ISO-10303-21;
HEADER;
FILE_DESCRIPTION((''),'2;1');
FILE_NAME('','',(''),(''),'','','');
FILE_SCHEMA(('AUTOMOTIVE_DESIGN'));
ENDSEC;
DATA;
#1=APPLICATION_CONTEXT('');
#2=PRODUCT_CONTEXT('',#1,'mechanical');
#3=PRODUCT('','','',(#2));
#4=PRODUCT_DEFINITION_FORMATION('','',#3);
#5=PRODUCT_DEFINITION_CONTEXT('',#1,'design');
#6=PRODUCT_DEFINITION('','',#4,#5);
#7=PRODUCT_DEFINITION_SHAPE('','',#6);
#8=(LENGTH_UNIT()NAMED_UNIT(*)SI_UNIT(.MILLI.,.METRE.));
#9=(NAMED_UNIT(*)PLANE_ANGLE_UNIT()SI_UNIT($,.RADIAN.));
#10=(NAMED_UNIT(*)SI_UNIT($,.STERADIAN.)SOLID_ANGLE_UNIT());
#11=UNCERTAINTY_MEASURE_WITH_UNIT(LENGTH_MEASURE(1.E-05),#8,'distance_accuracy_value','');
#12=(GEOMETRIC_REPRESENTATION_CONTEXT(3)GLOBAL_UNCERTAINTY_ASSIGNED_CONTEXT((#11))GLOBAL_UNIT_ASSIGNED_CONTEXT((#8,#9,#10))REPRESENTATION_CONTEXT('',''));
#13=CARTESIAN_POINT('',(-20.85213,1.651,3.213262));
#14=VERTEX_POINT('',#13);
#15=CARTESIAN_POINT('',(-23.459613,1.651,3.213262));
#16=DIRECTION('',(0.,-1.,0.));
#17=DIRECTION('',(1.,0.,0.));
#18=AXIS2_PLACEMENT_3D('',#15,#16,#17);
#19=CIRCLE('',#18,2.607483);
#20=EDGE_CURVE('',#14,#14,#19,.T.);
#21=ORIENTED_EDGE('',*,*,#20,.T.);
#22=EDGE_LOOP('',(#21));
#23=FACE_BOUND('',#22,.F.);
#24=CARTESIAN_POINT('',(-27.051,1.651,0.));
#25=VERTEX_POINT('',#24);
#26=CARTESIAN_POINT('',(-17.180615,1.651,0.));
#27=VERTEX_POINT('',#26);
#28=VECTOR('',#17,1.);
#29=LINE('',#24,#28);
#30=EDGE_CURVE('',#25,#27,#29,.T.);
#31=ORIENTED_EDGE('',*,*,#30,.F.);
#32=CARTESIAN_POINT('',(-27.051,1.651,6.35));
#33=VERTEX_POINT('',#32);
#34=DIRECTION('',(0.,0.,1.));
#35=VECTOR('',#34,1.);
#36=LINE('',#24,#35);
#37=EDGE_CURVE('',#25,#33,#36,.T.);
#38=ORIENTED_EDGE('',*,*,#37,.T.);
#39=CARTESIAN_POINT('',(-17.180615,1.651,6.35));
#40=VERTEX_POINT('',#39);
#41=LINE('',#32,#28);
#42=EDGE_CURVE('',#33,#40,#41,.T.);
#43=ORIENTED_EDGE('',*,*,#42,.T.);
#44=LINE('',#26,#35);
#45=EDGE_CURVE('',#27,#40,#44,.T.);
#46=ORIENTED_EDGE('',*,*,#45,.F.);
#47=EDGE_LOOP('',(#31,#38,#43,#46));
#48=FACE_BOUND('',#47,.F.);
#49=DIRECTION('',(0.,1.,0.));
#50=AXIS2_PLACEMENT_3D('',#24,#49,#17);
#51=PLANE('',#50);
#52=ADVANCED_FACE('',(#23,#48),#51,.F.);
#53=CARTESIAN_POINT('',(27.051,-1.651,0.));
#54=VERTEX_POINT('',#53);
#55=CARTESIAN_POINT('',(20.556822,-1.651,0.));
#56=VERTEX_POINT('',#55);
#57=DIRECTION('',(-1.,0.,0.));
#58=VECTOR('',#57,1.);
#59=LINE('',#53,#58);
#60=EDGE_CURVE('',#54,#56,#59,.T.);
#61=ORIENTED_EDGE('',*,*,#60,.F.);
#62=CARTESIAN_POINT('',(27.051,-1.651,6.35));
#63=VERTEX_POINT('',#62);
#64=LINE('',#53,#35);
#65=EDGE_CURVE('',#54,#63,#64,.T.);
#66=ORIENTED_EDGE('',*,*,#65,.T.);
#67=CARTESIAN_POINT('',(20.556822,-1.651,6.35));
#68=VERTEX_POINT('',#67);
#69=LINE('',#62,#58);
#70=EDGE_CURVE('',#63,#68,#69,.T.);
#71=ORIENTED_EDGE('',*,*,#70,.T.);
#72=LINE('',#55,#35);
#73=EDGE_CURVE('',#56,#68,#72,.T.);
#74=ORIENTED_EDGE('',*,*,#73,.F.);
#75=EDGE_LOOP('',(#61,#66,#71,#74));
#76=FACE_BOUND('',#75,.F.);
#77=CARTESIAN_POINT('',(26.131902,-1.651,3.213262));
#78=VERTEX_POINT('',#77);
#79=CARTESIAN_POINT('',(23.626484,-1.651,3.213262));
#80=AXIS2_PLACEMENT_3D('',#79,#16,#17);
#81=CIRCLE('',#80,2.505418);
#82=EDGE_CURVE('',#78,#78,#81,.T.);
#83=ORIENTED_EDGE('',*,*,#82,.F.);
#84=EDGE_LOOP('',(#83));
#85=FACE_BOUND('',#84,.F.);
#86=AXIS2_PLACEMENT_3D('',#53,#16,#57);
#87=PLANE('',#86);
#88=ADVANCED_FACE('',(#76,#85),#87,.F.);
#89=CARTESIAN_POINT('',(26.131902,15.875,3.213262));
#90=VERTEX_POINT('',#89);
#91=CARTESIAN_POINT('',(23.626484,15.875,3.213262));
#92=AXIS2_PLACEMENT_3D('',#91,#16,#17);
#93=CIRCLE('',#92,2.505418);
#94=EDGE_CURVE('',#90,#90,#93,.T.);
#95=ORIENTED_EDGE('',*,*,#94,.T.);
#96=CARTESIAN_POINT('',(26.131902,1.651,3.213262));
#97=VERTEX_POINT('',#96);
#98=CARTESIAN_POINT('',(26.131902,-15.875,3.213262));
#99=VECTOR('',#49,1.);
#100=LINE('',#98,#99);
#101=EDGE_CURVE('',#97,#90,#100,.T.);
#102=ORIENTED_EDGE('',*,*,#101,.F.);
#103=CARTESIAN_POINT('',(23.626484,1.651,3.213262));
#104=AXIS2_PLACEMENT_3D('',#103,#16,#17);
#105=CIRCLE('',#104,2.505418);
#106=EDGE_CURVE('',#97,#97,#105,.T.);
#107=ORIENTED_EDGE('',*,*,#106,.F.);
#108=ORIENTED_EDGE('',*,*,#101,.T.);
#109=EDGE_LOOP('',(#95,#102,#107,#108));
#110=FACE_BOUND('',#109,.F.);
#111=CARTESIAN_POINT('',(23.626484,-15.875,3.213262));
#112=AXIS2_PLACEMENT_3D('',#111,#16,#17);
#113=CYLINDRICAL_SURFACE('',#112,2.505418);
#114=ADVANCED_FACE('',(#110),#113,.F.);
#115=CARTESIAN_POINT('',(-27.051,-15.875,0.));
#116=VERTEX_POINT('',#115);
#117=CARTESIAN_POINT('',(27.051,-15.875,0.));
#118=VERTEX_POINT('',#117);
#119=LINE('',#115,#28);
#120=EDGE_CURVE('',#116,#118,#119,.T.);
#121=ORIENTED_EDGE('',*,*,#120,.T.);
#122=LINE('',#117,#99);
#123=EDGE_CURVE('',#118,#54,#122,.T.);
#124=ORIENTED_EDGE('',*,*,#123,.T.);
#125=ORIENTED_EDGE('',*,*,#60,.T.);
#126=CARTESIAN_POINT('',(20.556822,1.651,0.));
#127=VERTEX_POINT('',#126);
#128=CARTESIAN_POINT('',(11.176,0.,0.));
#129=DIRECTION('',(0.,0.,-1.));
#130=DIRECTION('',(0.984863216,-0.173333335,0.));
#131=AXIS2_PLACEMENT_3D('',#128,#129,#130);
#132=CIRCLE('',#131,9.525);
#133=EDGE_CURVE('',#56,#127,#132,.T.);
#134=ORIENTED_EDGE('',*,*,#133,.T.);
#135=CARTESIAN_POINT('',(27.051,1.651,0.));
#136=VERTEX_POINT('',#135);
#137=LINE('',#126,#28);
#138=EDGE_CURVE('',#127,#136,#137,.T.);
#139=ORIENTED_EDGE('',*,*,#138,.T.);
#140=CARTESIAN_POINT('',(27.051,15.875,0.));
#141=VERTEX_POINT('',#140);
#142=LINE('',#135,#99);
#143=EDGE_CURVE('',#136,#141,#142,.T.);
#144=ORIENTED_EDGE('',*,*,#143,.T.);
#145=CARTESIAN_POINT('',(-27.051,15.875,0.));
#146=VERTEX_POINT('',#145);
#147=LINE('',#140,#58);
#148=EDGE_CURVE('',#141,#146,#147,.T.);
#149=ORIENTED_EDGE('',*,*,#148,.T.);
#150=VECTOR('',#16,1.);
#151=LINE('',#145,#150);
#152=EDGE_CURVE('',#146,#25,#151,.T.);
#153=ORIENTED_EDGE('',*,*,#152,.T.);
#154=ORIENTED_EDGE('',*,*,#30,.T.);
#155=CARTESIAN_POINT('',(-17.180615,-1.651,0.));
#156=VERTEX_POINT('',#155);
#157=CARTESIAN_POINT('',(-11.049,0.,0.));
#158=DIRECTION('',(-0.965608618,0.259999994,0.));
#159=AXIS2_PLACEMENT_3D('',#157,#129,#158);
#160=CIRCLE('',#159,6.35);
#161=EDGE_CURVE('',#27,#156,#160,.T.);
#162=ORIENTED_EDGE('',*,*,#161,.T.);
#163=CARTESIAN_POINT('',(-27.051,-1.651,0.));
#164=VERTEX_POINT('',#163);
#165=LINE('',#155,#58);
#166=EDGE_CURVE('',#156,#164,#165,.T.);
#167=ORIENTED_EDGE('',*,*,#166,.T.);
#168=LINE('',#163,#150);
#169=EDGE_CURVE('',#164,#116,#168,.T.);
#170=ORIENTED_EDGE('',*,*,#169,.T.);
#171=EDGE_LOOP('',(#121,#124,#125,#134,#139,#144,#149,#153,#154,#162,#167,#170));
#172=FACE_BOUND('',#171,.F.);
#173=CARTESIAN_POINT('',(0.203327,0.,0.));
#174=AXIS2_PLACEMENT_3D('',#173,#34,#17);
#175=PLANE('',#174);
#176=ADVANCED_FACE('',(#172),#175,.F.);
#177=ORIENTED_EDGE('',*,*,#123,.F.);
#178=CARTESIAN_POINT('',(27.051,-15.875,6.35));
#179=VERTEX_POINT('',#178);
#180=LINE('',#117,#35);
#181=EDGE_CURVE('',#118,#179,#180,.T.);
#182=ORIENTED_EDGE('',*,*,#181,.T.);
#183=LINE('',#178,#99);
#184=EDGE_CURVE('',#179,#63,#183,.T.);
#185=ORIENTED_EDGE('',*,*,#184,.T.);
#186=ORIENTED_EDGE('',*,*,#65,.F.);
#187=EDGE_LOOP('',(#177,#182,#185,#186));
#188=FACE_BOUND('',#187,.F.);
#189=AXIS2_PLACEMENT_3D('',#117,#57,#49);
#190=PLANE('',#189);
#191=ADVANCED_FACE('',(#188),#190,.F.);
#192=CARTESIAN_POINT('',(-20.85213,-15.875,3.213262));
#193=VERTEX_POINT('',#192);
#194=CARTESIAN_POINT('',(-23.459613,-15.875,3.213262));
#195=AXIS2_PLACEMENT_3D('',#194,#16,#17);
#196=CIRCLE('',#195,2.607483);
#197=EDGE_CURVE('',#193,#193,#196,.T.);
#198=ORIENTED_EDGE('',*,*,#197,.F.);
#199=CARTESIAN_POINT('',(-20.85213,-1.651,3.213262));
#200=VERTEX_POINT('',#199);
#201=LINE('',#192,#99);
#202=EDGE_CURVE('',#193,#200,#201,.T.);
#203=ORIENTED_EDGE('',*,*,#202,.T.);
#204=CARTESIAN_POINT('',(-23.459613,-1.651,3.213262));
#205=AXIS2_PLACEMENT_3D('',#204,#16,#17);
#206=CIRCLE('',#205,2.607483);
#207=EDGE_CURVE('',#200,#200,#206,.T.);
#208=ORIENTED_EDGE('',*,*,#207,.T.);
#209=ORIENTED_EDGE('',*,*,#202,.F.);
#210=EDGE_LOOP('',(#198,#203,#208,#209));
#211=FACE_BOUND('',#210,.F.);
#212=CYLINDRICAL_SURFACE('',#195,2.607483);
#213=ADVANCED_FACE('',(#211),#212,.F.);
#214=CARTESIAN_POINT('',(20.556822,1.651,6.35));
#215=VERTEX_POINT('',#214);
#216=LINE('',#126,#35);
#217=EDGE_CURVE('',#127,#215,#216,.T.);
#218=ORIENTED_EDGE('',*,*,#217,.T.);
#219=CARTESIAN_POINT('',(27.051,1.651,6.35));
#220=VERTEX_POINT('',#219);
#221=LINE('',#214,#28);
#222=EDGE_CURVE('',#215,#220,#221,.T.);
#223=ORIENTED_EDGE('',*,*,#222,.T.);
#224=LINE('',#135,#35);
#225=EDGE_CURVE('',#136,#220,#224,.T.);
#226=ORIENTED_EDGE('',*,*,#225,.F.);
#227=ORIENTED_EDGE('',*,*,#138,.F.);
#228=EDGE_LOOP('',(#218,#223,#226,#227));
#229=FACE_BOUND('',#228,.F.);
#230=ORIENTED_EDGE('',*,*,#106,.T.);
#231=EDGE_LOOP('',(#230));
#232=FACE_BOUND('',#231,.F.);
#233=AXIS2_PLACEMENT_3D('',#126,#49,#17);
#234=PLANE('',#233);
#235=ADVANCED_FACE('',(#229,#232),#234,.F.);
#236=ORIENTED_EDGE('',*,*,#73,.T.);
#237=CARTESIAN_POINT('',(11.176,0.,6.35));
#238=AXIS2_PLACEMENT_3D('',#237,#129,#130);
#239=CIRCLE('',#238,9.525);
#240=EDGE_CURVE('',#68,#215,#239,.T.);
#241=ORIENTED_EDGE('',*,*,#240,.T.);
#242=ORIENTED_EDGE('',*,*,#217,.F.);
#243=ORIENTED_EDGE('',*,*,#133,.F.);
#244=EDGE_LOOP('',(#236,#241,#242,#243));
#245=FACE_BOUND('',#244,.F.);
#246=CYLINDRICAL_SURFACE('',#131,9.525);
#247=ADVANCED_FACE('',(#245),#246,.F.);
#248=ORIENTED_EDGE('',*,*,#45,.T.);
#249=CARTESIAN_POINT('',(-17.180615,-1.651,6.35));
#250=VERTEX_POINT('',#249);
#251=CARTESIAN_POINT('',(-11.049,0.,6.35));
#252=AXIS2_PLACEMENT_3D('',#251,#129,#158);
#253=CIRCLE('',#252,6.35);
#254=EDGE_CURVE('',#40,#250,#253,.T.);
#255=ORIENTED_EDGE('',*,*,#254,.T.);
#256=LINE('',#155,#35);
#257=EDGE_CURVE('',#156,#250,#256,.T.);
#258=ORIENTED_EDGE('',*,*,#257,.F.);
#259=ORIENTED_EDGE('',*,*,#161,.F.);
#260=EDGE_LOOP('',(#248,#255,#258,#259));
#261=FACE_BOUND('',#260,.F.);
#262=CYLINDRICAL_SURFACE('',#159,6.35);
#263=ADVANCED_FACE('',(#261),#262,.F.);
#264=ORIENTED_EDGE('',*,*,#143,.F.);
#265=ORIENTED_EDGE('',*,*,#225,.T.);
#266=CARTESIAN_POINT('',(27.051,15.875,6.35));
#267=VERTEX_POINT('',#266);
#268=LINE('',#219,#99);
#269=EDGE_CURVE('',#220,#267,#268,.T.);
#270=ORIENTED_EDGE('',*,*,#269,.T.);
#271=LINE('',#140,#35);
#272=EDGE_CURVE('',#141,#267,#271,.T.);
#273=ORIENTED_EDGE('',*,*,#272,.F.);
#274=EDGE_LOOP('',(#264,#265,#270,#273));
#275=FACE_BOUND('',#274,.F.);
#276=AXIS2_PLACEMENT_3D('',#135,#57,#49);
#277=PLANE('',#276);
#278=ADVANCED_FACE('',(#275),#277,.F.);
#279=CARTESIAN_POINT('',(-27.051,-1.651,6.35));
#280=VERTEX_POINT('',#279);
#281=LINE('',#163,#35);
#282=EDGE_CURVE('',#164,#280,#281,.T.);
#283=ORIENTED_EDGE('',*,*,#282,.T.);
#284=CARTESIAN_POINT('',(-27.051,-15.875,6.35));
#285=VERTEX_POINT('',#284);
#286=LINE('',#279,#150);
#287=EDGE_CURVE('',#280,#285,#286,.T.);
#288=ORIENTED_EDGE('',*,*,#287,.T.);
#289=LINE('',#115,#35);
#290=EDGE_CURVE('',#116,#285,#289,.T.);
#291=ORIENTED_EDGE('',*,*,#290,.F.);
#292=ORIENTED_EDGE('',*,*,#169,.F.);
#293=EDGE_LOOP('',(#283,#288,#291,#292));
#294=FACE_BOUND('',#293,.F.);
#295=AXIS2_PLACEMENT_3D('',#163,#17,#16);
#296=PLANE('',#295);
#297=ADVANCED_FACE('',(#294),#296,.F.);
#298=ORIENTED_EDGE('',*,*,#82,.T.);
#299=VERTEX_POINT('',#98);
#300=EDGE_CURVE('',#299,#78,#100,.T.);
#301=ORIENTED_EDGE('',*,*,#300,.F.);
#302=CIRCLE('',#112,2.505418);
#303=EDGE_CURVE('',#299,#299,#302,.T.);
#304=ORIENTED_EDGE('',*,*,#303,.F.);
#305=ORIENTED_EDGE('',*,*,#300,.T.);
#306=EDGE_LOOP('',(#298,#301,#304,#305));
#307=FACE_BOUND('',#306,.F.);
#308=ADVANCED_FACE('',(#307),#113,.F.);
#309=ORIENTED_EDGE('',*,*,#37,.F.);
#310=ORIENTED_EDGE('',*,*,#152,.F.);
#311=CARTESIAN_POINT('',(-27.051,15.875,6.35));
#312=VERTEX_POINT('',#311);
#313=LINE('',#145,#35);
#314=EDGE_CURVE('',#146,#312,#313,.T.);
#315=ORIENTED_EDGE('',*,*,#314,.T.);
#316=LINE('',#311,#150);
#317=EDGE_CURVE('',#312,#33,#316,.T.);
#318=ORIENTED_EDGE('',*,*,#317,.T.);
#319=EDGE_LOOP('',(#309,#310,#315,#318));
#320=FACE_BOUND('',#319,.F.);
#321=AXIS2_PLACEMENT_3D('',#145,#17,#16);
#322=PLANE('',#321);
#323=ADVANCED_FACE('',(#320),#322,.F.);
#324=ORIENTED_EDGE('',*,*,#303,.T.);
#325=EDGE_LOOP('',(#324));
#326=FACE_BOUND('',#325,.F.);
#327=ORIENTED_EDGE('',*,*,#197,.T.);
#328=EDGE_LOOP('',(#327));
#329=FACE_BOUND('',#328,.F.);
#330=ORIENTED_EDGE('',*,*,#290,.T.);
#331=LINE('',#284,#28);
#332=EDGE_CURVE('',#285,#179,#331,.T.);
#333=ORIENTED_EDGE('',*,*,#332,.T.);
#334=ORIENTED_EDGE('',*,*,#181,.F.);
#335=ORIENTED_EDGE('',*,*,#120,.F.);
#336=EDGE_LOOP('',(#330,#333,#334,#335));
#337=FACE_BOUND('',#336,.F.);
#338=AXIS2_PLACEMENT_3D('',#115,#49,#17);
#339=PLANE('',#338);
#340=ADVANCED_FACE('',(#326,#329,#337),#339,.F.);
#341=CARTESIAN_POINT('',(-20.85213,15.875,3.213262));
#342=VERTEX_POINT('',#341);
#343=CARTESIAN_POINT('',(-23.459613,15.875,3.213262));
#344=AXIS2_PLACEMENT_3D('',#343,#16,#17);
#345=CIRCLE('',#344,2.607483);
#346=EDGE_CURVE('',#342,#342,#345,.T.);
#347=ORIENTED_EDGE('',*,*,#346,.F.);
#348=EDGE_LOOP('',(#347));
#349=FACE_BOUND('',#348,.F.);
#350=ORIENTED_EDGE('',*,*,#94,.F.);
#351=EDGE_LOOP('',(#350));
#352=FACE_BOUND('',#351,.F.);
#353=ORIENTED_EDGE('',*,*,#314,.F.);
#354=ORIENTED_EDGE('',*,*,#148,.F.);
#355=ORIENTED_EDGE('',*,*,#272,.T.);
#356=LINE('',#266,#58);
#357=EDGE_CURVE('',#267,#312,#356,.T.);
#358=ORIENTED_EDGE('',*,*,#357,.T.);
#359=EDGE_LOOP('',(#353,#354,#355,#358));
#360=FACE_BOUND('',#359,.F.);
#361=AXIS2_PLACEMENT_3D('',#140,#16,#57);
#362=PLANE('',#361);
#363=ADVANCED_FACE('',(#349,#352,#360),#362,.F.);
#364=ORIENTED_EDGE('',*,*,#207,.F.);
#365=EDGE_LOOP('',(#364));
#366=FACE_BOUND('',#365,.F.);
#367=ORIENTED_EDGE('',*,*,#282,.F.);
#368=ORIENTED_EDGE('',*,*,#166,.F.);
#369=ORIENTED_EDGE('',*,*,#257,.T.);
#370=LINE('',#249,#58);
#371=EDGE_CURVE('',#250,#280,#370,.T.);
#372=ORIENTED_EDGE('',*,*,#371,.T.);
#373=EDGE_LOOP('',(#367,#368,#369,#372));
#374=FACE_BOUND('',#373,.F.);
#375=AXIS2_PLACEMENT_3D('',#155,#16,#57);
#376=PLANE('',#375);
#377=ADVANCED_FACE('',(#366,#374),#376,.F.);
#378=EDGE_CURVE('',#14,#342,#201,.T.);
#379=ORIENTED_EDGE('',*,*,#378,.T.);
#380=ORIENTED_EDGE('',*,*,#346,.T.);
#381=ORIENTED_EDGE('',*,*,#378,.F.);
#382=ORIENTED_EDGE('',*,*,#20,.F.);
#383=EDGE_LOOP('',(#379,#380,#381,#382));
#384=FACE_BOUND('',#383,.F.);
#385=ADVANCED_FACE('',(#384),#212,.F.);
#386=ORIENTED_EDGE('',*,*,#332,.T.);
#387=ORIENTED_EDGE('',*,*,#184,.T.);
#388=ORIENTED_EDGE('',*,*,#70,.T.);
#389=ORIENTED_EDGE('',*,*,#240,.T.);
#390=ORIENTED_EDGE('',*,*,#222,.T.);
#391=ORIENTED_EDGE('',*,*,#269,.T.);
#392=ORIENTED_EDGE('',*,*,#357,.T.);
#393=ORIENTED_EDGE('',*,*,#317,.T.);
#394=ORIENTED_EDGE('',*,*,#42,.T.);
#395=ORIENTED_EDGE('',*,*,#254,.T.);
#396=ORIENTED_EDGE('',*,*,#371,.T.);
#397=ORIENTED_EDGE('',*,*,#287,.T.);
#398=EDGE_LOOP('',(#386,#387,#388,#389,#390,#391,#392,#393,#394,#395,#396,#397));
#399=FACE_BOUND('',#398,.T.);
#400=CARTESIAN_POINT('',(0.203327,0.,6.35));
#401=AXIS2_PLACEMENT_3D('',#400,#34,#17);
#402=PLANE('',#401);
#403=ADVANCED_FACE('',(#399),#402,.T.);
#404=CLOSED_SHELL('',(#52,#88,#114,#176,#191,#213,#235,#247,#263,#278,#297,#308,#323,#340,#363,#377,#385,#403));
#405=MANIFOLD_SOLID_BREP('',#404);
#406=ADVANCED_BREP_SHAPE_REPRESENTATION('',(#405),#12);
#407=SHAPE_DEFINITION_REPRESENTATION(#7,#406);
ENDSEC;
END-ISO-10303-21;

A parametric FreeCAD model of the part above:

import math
import FreeCAD as App
import Part
import Sketcher
Q = App.Units.Quantity

doc = App.newDocument("Part")
params = doc.addObject("Spreadsheet::Sheet", "Params")
for row, (alias, value) in enumerate([
    ("sketch1_radius", "0.25 in"),
    ("sketch1_radius2", "0.375 in"),
    ("sketch1_width", "2.13 in"),
    ("sketch1_height", "0.56 in"),
    ("pad1_length", "0.25 in"),
    ("pocket1_length", "1.35 in"),
], start=1):
    params.set(f"A{row}", alias)
    params.set(f"B{row}", "=" + value)
    params.setAlias(f"B{row}", alias)

body = doc.addObject("PartDesign::Body", "Body")

sketch1 = body.newObject("Sketcher::SketchObject", "Sketch")
sketch1.AttachmentSupport = (doc.getObject("XY_Plane"), [""])
sketch1.MapMode = "FlatFace"
sketch1.addGeometry([
    Part.LineSegment(App.Vector(27.051, 15.875, 0), App.Vector(-27.051, 15.875, 0)),
    Part.LineSegment(App.Vector(-27.051, 15.875, 0), App.Vector(-27.051, 1.651, 0)),
    Part.LineSegment(App.Vector(-27.051, 1.651, 0), App.Vector(-17.180615, 1.651, 0)),
    Part.ArcOfCircle(Part.Circle(App.Vector(-11.049, 0, 0), App.Vector(0, 0, 1), 6.35), math.radians(-164.929938), math.radians(164.929938)),
    Part.LineSegment(App.Vector(-17.180615, -1.651, 0), App.Vector(-27.051, -1.651, 0)),
    Part.LineSegment(App.Vector(-27.051, -1.651, 0), App.Vector(-27.051, -15.875, 0)),
    Part.LineSegment(App.Vector(-27.051, -15.875, 0), App.Vector(27.051, -15.875, 0)),
    Part.LineSegment(App.Vector(27.051, -15.875, 0), App.Vector(27.051, -1.651, 0)),
    Part.LineSegment(App.Vector(27.051, -1.651, 0), App.Vector(20.556822, -1.651, 0)),
    Part.ArcOfCircle(Part.Circle(App.Vector(11.176, 0, 0), App.Vector(0, 0, 1), 9.525), math.radians(9.981683), math.radians(350.018317)),
    Part.LineSegment(App.Vector(20.556822, 1.651, 0), App.Vector(27.051, 1.651, 0)),
    Part.LineSegment(App.Vector(27.051, 1.651, 0), App.Vector(27.051, 15.875, 0)),
], False)
sketch1.addConstraint([
    Sketcher.Constraint("Coincident", 0, 2, 1, 1),
    Sketcher.Constraint("Coincident", 1, 2, 2, 1),
    Sketcher.Constraint("Coincident", 2, 2, 3, 2),
    Sketcher.Constraint("Coincident", 3, 1, 4, 1),
    Sketcher.Constraint("Coincident", 4, 2, 5, 1),
    Sketcher.Constraint("Coincident", 5, 2, 6, 1),
    Sketcher.Constraint("Coincident", 6, 2, 7, 1),
    Sketcher.Constraint("Coincident", 7, 2, 8, 1),
    Sketcher.Constraint("Coincident", 8, 2, 9, 2),
    Sketcher.Constraint("Coincident", 9, 1, 10, 1),
    Sketcher.Constraint("Coincident", 10, 2, 11, 1),
    Sketcher.Constraint("Coincident", 11, 2, 0, 1),
    Sketcher.Constraint("Horizontal", 0),
    Sketcher.Constraint("Vertical", 1),
    Sketcher.Constraint("Horizontal", 2),
    Sketcher.Constraint("Horizontal", 4),
    Sketcher.Constraint("Vertical", 5),
    Sketcher.Constraint("Horizontal", 6),
    Sketcher.Constraint("Vertical", 7),
    Sketcher.Constraint("Horizontal", 8),
    Sketcher.Constraint("Horizontal", 10),
    Sketcher.Constraint("Vertical", 11),
    Sketcher.Constraint("Symmetric", 0, 2, 6, 2, -1, 1),
    Sketcher.Constraint("Symmetric", 4, 2, 10, 2, -1, 1),
    Sketcher.Constraint("Symmetric", 4, 2, 7, 2, -2),
    Sketcher.Constraint("Symmetric", 2, 2, 3, 1, -1),
    Sketcher.Constraint("PointOnObject", 9, 3, -1),
    Sketcher.Constraint("Radius", 3, Q("0.25 in")),
    Sketcher.Constraint("Radius", 9, Q("0.375 in")),
    Sketcher.Constraint("DistanceX", 0, 2, 0, 1, Q("2.13 in")),
    Sketcher.Constraint("DistanceY", 1, 2, 1, 1, Q("0.56 in")),
    Sketcher.Constraint("DistanceX", 3, 3, 6, 2, Q("1.5 in")),
    Sketcher.Constraint("DistanceX", -1, 1, 9, 3, Q("0.44 in")),
    Sketcher.Constraint("DistanceY", 3, 1, 2, 2, Q("0.13 in")),
])
sketch1.setExpression("Constraints[27]", "Params.sketch1_radius")
sketch1.setExpression("Constraints[28]", "Params.sketch1_radius2")
sketch1.setExpression("Constraints[29]", "Params.sketch1_width")
sketch1.setExpression("Constraints[30]", "Params.sketch1_height")
pad1 = body.newObject("PartDesign::Pad", "Pad")
pad1.Profile = sketch1
pad1.setExpression("Length", "Params.pad1_length")

sketch2 = body.newObject("Sketcher::SketchObject", "Sketch001")
sketch2.AttachmentSupport = (doc.getObject("XZ_Plane"), [""])
sketch2.MapMode = "FlatFace"
sketch2.AttachmentOffset = App.Placement(App.Vector(0, 0, 0.625 * 25.4), App.Rotation())
sketch2.addGeometry([
    Part.Circle(App.Vector(-23.459613, 3.213262, 0), App.Vector(0, 0, 1), 2.607483),
    Part.Circle(App.Vector(23.626484, 3.213262, 0), App.Vector(0, 0, 1), 2.505418),
], False)
sketch2.addConstraint([
    Sketcher.Constraint("Horizontal", 0, 3, 1, 3),
    Sketcher.Constraint("Diameter", 0, Q("5.214966 mm")),
    Sketcher.Constraint("Diameter", 1, Q("5.010836 mm")),
    Sketcher.Constraint("DistanceY", -1, 1, 0, 3, Q("3.213262 mm")),
    Sketcher.Constraint("DistanceX", 0, 3, -1, 1, Q("23.459613 mm")),
    Sketcher.Constraint("DistanceX", -1, 1, 1, 3, Q("23.626484 mm")),
])
pocket1 = body.newObject("PartDesign::Pocket", "Pocket")
pocket1.Profile = sketch2
pocket1.setExpression("Length", "Params.pocket1_length")

doc.recompute()
